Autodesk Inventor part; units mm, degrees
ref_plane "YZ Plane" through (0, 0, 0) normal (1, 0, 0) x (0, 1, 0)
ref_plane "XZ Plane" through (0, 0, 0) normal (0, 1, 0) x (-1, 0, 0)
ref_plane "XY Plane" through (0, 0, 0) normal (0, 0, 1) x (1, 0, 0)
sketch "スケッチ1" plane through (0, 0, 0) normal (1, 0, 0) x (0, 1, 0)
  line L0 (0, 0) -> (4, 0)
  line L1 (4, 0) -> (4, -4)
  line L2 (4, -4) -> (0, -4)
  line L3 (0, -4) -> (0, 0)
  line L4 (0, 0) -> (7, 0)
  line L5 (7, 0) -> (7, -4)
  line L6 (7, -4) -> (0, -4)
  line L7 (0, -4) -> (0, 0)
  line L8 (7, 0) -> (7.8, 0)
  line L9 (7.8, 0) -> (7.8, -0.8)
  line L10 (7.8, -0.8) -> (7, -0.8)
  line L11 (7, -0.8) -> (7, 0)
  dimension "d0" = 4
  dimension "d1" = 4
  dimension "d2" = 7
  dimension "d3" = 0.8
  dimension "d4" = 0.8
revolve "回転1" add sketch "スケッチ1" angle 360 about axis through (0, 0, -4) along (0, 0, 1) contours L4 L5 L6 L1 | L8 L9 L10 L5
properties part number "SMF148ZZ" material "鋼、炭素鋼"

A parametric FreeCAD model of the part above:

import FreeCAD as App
import Part
import Sketcher
from FreeCAD import Vector

doc = App.newDocument("Part")
body = doc.addObject("PartDesign::Body", "Body")

sketch1 = body.newObject("Sketcher::SketchObject", "Sketch")
sketch1.AttachmentSupport = (doc.getObject("YZ_Plane"), [""])
sketch1.MapMode = "FlatFace"
sketch1.addGeometry([
    Part.LineSegment(Vector(4, 0, 0), Vector(4, -4, 0)),
    Part.LineSegment(Vector(4, -4, 0), Vector(7, -4, 0)),
    Part.LineSegment(Vector(7, -4, 0), Vector(7, -0.8, 0)),
    Part.LineSegment(Vector(7, -0.8, 0), Vector(7.8, -0.8, 0)),
    Part.LineSegment(Vector(7.8, -0.8, 0), Vector(7.8, 0, 0)),
    Part.LineSegment(Vector(7.8, 0, 0), Vector(4, 0, 0)),
], False)
sketch1.addConstraint([
    Sketcher.Constraint("Coincident", 0, 2, 1, 1),
    Sketcher.Constraint("Coincident", 1, 2, 2, 1),
    Sketcher.Constraint("Coincident", 2, 2, 3, 1),
    Sketcher.Constraint("Coincident", 3, 2, 4, 1),
    Sketcher.Constraint("Coincident", 4, 2, 5, 1),
    Sketcher.Constraint("Coincident", 5, 2, 0, 1),
    Sketcher.Constraint("Vertical", 0),
    Sketcher.Constraint("Horizontal", 1),
    Sketcher.Constraint("Vertical", 2),
    Sketcher.Constraint("Horizontal", 3),
    Sketcher.Constraint("Vertical", 4),
    Sketcher.Constraint("Horizontal", 5),
    Sketcher.Constraint("PointOnObject", 4, 2, -1),
    Sketcher.Constraint("Equal", 3, 4),
    Sketcher.Constraint("DistanceY", 0, 2, 0, 1, 4.0),
    Sketcher.Constraint("DistanceX", 3, 1, 3, 2, 0.8),
    Sketcher.Constraint("DistanceX", -1, 1, 0, 2, 4.0),
    Sketcher.Constraint("DistanceX", -1, 1, 1, 2, 7.0),
])
revolution = body.newObject("PartDesign::Revolution", "Revolution")
revolution.Profile = sketch1
revolution.ReferenceAxis = (sketch1, ["V_Axis"])
revolution.Angle = 360

doc.recompute()
